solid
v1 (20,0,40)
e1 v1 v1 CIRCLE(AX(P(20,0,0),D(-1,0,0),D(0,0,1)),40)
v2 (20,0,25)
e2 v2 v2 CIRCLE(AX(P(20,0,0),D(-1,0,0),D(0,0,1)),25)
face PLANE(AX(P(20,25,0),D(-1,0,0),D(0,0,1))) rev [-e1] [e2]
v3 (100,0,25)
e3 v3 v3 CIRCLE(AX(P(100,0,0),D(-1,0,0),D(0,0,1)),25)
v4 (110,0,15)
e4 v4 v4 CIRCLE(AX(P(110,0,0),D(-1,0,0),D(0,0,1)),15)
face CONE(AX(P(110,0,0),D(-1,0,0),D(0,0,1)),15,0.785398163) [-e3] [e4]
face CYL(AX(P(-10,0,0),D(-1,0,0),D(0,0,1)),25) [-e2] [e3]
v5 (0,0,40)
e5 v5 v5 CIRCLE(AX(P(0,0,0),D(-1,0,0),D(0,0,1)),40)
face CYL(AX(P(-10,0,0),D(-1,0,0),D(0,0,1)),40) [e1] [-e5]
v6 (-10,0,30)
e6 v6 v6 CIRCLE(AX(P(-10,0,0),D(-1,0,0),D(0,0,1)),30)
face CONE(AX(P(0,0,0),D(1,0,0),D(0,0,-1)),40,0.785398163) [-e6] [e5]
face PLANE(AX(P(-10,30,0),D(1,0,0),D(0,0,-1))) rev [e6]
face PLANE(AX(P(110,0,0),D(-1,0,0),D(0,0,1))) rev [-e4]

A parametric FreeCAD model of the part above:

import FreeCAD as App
import Part
import Sketcher

V = App.Vector

doc = App.newDocument("Part")
body = doc.addObject("PartDesign::Body", "Body")

# Sketch on XY plane
sketch1 = doc.addObject("Sketcher::SketchObject", "Sketch")
body.addObject(sketch1)
sketch1.AttachmentSupport = (doc.XY_Plane, [""])
sketch1.MapMode = "FlatFace"
sketch1.addGeometry(Part.LineSegment(V(20, 40, 0), V(0, 40, 0)), False)
sketch1.addGeometry(Part.LineSegment(V(0, 40, 0), V(-10, 30, 0)), False)
sketch1.addGeometry(Part.LineSegment(V(-10, 30, 0), V(-10, 0, 0)), False)
sketch1.addGeometry(Part.LineSegment(V(-10, 0, 0), V(110, 0, 0)), False)
sketch1.addGeometry(Part.LineSegment(V(110, 0, 0), V(110, 15, 0)), False)
sketch1.addGeometry(Part.LineSegment(V(110, 15, 0), V(100, 25, 0)), False)
sketch1.addGeometry(Part.LineSegment(V(100, 25, 0), V(20, 25, 0)), False)
sketch1.addGeometry(Part.LineSegment(V(20, 25, 0), V(20, 40, 0)), False)
sketch1.addConstraint(Sketcher.Constraint("Coincident", 0, 2, 1, 1))
sketch1.addConstraint(Sketcher.Constraint("Coincident", 1, 2, 2, 1))
sketch1.addConstraint(Sketcher.Constraint("Coincident", 2, 2, 3, 1))
sketch1.addConstraint(Sketcher.Constraint("Coincident", 3, 2, 4, 1))
sketch1.addConstraint(Sketcher.Constraint("Coincident", 4, 2, 5, 1))
sketch1.addConstraint(Sketcher.Constraint("Coincident", 5, 2, 6, 1))
sketch1.addConstraint(Sketcher.Constraint("Coincident", 6, 2, 7, 1))
sketch1.addConstraint(Sketcher.Constraint("Coincident", 7, 2, 0, 1))
sketch1.addConstraint(Sketcher.Constraint("Horizontal", 0))
sketch1.addConstraint(Sketcher.Constraint("Vertical", 2))
sketch1.addConstraint(Sketcher.Constraint("Horizontal", 3))
sketch1.addConstraint(Sketcher.Constraint("Vertical", 4))
sketch1.addConstraint(Sketcher.Constraint("Horizontal", 6))
sketch1.addConstraint(Sketcher.Constraint("Vertical", 7))
sketch1.addConstraint(Sketcher.Constraint("PointOnObject", 0, 2, -2))
sketch1.addConstraint(Sketcher.Constraint("PointOnObject", 2, 2, -1))
sketch1.addConstraint(Sketcher.Constraint("Perpendicular", 1, 5))
sketch1.addConstraint(Sketcher.Constraint("Equal", 4, 7))
sketch1.addConstraint(Sketcher.Constraint("Equal", 1, 5))
sketch1.addConstraint(Sketcher.Constraint("DistanceX", 0, 2, 0, 1, 20.0))
sketch1.addConstraint(Sketcher.Constraint("DistanceX", 3, 1, 3, 2, 120.0))
sketch1.addConstraint(Sketcher.Constraint("DistanceX", 6, 2, 6, 1, 80.0))
sketch1.addConstraint(Sketcher.Constraint("DistanceY", 2, 2, 2, 1, 30.0))
sketch1.addConstraint(Sketcher.Constraint("DistanceY", 4, 1, 4, 2, 15.0))
revolution = doc.addObject("PartDesign::Revolution", "Revolution")
body.addObject(revolution)
revolution.Profile = sketch1
revolution.ReferenceAxis = (sketch1, ["H_Axis"])
revolution.Angle = 360

doc.recompute()
